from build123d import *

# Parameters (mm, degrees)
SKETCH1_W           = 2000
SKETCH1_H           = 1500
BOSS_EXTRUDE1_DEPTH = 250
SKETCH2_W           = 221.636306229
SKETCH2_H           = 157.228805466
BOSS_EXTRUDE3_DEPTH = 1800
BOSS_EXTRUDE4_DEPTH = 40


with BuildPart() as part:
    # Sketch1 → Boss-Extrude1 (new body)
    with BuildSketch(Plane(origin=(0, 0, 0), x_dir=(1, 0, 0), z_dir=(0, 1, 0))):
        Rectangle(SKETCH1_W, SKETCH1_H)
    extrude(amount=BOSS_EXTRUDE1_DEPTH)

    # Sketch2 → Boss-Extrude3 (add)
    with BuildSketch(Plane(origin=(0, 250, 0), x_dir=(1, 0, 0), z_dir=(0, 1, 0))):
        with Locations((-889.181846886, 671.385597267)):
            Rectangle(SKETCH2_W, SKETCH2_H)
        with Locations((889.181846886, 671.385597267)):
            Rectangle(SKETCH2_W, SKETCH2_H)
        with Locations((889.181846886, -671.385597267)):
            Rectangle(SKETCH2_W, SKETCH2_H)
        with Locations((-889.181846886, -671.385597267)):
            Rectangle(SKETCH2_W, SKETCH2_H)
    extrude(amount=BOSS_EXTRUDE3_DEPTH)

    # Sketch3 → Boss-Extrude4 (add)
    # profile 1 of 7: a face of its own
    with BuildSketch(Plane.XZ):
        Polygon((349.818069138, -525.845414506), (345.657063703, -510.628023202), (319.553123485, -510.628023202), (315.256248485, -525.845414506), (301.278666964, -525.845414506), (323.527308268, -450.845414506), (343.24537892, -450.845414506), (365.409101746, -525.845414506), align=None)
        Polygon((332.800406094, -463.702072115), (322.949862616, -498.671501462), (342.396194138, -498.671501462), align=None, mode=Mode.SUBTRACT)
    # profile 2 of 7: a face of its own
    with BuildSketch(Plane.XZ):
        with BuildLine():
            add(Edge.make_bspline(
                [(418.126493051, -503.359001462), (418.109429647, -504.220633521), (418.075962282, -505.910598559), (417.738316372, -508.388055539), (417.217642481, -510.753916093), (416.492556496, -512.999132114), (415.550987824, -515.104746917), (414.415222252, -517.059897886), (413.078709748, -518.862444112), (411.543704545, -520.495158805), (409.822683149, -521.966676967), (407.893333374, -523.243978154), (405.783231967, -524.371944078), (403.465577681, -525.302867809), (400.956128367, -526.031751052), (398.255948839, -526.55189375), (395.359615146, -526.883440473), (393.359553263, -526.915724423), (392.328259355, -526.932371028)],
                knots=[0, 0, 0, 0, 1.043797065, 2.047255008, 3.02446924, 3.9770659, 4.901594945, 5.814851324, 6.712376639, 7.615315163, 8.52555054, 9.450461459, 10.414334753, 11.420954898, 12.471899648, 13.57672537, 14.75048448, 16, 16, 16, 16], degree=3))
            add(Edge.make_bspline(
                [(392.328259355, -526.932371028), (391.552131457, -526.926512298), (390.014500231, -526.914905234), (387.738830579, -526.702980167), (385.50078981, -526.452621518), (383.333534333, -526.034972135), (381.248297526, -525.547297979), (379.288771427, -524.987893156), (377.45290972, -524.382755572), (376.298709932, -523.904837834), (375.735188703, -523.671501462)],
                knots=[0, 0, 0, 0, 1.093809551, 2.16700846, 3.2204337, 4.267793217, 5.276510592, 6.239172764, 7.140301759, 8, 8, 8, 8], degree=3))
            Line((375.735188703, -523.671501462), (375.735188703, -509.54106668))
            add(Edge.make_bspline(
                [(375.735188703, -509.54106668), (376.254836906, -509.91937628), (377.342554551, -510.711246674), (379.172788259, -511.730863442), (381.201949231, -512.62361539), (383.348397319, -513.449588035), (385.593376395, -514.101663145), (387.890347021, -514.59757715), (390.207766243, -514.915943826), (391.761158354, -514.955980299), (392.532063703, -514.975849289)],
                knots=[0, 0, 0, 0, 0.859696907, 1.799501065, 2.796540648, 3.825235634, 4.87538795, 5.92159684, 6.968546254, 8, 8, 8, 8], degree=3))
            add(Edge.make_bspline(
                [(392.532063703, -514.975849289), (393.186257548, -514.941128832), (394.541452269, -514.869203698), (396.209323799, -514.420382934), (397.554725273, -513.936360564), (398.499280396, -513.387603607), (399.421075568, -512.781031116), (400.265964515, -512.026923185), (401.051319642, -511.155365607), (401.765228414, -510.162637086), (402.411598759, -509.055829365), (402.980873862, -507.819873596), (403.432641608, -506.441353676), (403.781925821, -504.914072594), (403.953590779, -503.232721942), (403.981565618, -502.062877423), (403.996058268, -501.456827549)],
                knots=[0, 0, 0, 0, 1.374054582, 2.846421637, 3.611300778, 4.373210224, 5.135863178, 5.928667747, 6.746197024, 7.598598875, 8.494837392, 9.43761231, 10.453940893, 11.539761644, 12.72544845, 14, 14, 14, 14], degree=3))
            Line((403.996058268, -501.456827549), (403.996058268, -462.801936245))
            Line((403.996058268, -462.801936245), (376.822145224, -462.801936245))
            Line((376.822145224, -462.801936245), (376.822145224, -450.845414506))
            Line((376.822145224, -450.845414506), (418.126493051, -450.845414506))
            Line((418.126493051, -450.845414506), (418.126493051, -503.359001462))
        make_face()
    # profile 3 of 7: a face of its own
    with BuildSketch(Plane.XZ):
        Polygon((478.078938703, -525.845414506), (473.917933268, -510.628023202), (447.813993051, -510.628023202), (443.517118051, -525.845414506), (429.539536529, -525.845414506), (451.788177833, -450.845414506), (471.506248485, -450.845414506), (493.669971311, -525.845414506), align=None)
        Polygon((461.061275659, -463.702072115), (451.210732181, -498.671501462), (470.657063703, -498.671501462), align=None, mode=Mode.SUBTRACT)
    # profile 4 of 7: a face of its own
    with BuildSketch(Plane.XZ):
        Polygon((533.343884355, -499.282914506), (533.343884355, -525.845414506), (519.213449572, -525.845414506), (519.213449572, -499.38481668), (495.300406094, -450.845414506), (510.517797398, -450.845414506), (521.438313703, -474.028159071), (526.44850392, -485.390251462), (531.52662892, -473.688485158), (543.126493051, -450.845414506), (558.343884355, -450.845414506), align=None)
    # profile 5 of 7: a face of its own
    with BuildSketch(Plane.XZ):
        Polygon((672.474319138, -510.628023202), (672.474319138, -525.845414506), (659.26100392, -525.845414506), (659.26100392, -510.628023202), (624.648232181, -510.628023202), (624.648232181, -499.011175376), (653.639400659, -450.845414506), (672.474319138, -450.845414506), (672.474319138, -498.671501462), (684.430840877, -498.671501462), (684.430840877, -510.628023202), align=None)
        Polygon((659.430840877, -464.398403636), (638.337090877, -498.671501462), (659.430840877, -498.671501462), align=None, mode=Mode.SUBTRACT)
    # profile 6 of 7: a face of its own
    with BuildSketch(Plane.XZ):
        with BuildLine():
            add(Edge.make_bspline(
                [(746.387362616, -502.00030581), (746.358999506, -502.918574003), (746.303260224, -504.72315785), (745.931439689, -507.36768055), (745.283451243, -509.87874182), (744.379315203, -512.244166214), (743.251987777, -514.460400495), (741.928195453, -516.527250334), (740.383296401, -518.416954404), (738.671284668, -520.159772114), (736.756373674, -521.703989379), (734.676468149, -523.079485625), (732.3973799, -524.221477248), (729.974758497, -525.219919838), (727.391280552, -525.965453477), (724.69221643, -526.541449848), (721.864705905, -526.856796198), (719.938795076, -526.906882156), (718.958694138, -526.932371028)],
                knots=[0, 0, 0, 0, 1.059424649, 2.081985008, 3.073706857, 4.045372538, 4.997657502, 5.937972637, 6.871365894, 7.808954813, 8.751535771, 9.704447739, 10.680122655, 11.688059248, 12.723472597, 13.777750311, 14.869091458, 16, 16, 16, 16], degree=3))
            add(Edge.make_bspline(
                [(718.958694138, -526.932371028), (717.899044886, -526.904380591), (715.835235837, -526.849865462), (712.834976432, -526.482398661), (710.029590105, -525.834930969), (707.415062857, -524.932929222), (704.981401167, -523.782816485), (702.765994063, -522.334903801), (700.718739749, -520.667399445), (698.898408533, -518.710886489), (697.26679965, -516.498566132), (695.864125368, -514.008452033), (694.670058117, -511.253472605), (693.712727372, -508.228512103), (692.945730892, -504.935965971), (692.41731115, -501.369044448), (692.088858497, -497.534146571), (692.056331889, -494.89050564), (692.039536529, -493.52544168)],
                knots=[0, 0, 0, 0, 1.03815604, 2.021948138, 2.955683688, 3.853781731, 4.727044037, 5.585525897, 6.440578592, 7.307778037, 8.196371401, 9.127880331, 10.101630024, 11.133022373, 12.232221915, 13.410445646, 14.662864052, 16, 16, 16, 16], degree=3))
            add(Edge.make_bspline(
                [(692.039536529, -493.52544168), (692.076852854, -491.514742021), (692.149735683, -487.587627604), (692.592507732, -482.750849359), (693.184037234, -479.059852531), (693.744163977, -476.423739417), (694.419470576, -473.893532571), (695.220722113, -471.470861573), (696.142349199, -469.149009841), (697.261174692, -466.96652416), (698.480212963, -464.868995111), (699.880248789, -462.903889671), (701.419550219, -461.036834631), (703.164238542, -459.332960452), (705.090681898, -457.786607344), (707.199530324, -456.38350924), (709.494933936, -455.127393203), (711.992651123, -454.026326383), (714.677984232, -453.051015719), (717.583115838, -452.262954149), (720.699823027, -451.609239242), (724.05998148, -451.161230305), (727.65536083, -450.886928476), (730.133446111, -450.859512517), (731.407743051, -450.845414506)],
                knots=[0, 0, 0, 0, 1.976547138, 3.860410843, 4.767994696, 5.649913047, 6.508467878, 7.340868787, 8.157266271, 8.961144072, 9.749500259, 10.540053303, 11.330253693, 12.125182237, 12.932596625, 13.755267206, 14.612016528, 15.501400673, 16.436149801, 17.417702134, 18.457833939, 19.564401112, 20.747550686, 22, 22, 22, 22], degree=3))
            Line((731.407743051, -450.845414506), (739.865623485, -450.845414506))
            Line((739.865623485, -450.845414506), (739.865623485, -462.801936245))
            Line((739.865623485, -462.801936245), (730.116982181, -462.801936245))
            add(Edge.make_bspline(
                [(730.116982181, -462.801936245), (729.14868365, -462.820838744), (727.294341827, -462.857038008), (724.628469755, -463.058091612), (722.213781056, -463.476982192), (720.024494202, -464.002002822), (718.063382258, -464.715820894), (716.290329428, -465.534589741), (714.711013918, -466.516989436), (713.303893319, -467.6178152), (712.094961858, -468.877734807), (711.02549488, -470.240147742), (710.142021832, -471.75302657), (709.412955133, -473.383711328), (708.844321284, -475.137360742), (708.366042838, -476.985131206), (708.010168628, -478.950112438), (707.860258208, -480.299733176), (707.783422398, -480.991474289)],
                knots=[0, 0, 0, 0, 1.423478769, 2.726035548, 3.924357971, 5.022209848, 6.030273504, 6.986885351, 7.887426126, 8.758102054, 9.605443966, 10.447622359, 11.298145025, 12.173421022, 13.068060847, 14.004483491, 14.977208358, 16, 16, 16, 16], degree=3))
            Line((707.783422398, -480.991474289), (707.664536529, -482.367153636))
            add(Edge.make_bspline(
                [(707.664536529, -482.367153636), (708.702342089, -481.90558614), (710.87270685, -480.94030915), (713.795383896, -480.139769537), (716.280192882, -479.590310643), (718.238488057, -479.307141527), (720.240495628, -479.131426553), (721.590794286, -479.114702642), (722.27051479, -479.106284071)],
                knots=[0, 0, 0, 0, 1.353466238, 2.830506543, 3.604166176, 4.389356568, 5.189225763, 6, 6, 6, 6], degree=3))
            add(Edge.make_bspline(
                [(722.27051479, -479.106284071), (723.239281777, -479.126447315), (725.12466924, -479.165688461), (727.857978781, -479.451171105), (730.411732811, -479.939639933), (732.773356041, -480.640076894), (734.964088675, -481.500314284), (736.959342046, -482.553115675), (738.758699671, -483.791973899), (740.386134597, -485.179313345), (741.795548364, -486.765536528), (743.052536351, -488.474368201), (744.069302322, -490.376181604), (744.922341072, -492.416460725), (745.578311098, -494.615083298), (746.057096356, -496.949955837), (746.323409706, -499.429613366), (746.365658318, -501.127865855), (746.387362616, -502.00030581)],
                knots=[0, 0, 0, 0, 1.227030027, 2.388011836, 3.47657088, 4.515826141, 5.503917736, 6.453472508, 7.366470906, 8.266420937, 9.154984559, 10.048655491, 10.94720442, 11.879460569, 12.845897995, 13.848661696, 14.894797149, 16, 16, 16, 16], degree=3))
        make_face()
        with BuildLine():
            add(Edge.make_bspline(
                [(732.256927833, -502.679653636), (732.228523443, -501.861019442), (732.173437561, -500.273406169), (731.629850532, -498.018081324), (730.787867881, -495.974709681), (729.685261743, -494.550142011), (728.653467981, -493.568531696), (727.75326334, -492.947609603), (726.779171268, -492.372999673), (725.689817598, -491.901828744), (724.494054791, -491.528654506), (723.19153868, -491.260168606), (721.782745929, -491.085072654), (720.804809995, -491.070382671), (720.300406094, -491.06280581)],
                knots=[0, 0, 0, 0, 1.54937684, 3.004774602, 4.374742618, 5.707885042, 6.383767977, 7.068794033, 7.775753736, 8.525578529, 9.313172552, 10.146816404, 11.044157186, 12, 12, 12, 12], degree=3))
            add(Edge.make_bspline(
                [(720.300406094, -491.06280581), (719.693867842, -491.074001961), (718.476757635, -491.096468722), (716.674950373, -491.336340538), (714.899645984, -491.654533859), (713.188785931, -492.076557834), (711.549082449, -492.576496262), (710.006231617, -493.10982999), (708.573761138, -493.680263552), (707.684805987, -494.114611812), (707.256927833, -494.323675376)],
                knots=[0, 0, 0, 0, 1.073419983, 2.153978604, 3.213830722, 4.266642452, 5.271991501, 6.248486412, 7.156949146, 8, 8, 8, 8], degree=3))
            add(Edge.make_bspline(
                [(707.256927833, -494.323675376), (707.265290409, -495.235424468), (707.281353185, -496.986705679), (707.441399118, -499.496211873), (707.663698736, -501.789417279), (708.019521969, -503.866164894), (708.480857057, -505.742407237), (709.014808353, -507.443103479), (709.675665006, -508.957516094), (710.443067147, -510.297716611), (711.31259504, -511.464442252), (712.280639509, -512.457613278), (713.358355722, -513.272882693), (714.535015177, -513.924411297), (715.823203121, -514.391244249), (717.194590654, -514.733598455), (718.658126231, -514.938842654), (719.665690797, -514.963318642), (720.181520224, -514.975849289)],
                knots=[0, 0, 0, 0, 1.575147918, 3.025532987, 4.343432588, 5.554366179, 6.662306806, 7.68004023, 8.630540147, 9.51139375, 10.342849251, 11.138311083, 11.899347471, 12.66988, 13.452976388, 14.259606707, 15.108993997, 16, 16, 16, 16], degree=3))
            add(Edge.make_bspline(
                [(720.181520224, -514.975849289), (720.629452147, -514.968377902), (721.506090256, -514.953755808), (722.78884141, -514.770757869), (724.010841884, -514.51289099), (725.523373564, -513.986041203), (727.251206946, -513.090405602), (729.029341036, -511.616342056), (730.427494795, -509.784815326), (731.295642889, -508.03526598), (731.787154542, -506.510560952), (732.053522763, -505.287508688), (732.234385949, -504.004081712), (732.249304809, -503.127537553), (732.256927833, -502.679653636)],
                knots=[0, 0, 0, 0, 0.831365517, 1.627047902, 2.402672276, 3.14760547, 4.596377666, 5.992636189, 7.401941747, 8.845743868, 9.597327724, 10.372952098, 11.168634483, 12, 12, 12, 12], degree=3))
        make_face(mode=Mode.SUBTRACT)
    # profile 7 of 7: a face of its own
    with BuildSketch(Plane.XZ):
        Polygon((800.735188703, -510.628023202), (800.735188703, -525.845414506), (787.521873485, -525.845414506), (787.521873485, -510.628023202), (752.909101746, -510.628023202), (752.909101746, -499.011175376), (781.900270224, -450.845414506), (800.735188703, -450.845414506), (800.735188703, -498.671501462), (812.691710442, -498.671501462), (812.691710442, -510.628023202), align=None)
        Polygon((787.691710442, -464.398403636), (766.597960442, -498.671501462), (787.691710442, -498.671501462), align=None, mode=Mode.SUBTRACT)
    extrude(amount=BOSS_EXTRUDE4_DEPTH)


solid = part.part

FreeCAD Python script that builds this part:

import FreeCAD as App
import Part
import Sketcher
from FreeCAD import Vector

doc = App.newDocument("Part")
body = doc.addObject("PartDesign::Body", "Body")

# Sketch on XZ plane
sketch1 = body.newObject("Sketcher::SketchObject", "Sketch")
sketch1.AttachmentSupport = (doc.getObject("XZ_Plane"), [""])
sketch1.MapMode = "FlatFace"
sketch1.addGeometry(Part.LineSegment(Vector(-1000, -750, 0), Vector(-1000, 750, 0)), False)
sketch1.addGeometry(Part.LineSegment(Vector(-1000, 750, 0), Vector(1000, 750, 0)), False)
sketch1.addGeometry(Part.LineSegment(Vector(1000, 750, 0), Vector(1000, -750, 0)), False)
sketch1.addGeometry(Part.LineSegment(Vector(1000, -750, 0), Vector(-1000, -750, 0)), False)
sketch1.addConstraint(Sketcher.Constraint("Coincident", 0, 2, 1, 1))
sketch1.addConstraint(Sketcher.Constraint("Coincident", 1, 2, 2, 1))
sketch1.addConstraint(Sketcher.Constraint("Coincident", 2, 2, 3, 1))
sketch1.addConstraint(Sketcher.Constraint("Coincident", 3, 2, 0, 1))
sketch1.addConstraint(Sketcher.Constraint("Vertical", 0))
sketch1.addConstraint(Sketcher.Constraint("Horizontal", 1))
sketch1.addConstraint(Sketcher.Constraint("Vertical", 2))
sketch1.addConstraint(Sketcher.Constraint("Horizontal", 3))
sketch1.addConstraint(Sketcher.Constraint("Symmetric", 0, 2, 2, 2, -1, 1))
sketch1.addConstraint(Sketcher.Constraint("DistanceX", 1, 1, 1, 2, 2000.0))
sketch1.addConstraint(Sketcher.Constraint("DistanceY", 0, 1, 0, 2, 1500.0))
pad1 = body.newObject("PartDesign::Pad", "Pad")
pad1.Profile = sketch1
pad1.Length = 250
pad1.Reversed = True

# Sketch on XZ plane
sketch2 = body.newObject("Sketcher::SketchObject", "Sketch001")
sketch2.AttachmentSupport = (doc.getObject("XZ_Plane"), [""])
sketch2.MapMode = "FlatFace"
sketch2.AttachmentOffset = App.Placement(Vector(0, 0, -250), App.Rotation())
sketch2.addGeometry(Part.LineSegment(Vector(-1000, -750, 0), Vector(-1000, -593, 0)), False)
sketch2.addGeometry(Part.LineSegment(Vector(-1000, -593, 0), Vector(-778, -593, 0)), False)
sketch2.addGeometry(Part.LineSegment(Vector(-778, -593, 0), Vector(-778, -750, 0)), False)
sketch2.addGeometry(Part.LineSegment(Vector(-778, -750, 0), Vector(-1000, -750, 0)), False)
sketch2.addGeometry(Part.LineSegment(Vector(778, -750, 0), Vector(778, -593, 0)), False)
sketch2.addGeometry(Part.LineSegment(Vector(778, -593, 0), Vector(1000, -593, 0)), False)
sketch2.addGeometry(Part.LineSegment(Vector(1000, -593, 0), Vector(1000, -750, 0)), False)
sketch2.addGeometry(Part.LineSegment(Vector(1000, -750, 0), Vector(778, -750, 0)), False)
sketch2.addGeometry(Part.LineSegment(Vector(778, 593, 0), Vector(778, 750, 0)), False)
sketch2.addGeometry(Part.LineSegment(Vector(778, 750, 0), Vector(1000, 750, 0)), False)
sketch2.addGeometry(Part.LineSegment(Vector(1000, 750, 0), Vector(1000, 593, 0)), False)
sketch2.addGeometry(Part.LineSegment(Vector(1000, 593, 0), Vector(778, 593, 0)), False)
sketch2.addGeometry(Part.LineSegment(Vector(-1000, 593, 0), Vector(-1000, 750, 0)), False)
sketch2.addGeometry(Part.LineSegment(Vector(-1000, 750, 0), Vector(-778, 750, 0)), False)
sketch2.addGeometry(Part.LineSegment(Vector(-778, 750, 0), Vector(-778, 593, 0)), False)
sketch2.addGeometry(Part.LineSegment(Vector(-778, 593, 0), Vector(-1000, 593, 0)), False)
sketch2.addConstraint(Sketcher.Constraint("Coincident", 0, 2, 1, 1))
sketch2.addConstraint(Sketcher.Constraint("Coincident", 1, 2, 2, 1))
sketch2.addConstraint(Sketcher.Constraint("Coincident", 2, 2, 3, 1))
sketch2.addConstraint(Sketcher.Constraint("Coincident", 3, 2, 0, 1))
sketch2.addConstraint(Sketcher.Constraint("Coincident", 4, 2, 5, 1))
sketch2.addConstraint(Sketcher.Constraint("Coincident", 5, 2, 6, 1))
sketch2.addConstraint(Sketcher.Constraint("Coincident", 6, 2, 7, 1))
sketch2.addConstraint(Sketcher.Constraint("Coincident", 7, 2, 4, 1))
sketch2.addConstraint(Sketcher.Constraint("Coincident", 8, 2, 9, 1))
sketch2.addConstraint(Sketcher.Constraint("Coincident", 9, 2, 10, 1))
sketch2.addConstraint(Sketcher.Constraint("Coincident", 10, 2, 11, 1))
sketch2.addConstraint(Sketcher.Constraint("Coincident", 11, 2, 8, 1))
sketch2.addConstraint(Sketcher.Constraint("Coincident", 12, 2, 13, 1))
sketch2.addConstraint(Sketcher.Constraint("Coincident", 13, 2, 14, 1))
sketch2.addConstraint(Sketcher.Constraint("Coincident", 14, 2, 15, 1))
sketch2.addConstraint(Sketcher.Constraint("Coincident", 15, 2, 12, 1))
sketch2.addConstraint(Sketcher.Constraint("Vertical", 0))
sketch2.addConstraint(Sketcher.Constraint("Horizontal", 1))
sketch2.addConstraint(Sketcher.Constraint("Vertical", 2))
sketch2.addConstraint(Sketcher.Constraint("Horizontal", 3))
sketch2.addConstraint(Sketcher.Constraint("Vertical", 4))
sketch2.addConstraint(Sketcher.Constraint("Horizontal", 5))
sketch2.addConstraint(Sketcher.Constraint("Vertical", 6))
sketch2.addConstraint(Sketcher.Constraint("Horizontal", 7))
sketch2.addConstraint(Sketcher.Constraint("Vertical", 8))
sketch2.addConstraint(Sketcher.Constraint("Horizontal", 9))
sketch2.addConstraint(Sketcher.Constraint("Vertical", 10))
sketch2.addConstraint(Sketcher.Constraint("Horizontal", 11))
sketch2.addConstraint(Sketcher.Constraint("Vertical", 12))
sketch2.addConstraint(Sketcher.Constraint("Horizontal", 13))
sketch2.addConstraint(Sketcher.Constraint("Vertical", 14))
sketch2.addConstraint(Sketcher.Constraint("Horizontal", 15))
sketch2.addConstraint(Sketcher.Constraint("Symmetric", 2, 2, 8, 2, -1, 1))
sketch2.addConstraint(Sketcher.Constraint("Symmetric", 0, 2, 10, 2, -1, 1))
sketch2.addConstraint(Sketcher.Constraint("Symmetric", 6, 2, 12, 2, -1, 1))
sketch2.addConstraint(Sketcher.Constraint("Symmetric", 4, 2, 14, 2, -1, 1))
sketch2.addConstraint(Sketcher.Constraint("Symmetric", 1, 2, 4, 2, -2))
sketch2.addConstraint(Sketcher.Constraint("Symmetric", 3, 2, 6, 2, -2))
sketch2.addConstraint(Sketcher.Constraint("DistanceX", 0, 2, -1, 1, 1000.0))
sketch2.addConstraint(Sketcher.Constraint("DistanceY", 2, 2, -1, 1, 750.0))
sketch2.addConstraint(Sketcher.Constraint("DistanceX", 1, 1, 1, 2, 221.636306))
sketch2.addConstraint(Sketcher.Constraint("DistanceY", 0, 1, 0, 2, 157.228805))
pad2 = body.newObject("PartDesign::Pad", "Pad001")
pad2.Profile = sketch2
pad2.Length = 1800
pad2.Reversed = True

# Sketch on XZ plane
sketch3 = body.newObject("Sketcher::SketchObject", "Sketch002")
sketch3.AttachmentSupport = (doc.getObject("XZ_Plane"), [""])
sketch3.MapMode = "FlatFace"
sketch3.addGeometry(Part.LineSegment(Vector(345.657064, -510.628023, 0), Vector(349.818069, -525.845415, 0)), False)
sketch3.addGeometry(Part.LineSegment(Vector(349.818069, -525.845415, 0), Vector(365.409102, -525.845415, 0)), False)
sketch3.addGeometry(Part.LineSegment(Vector(365.409102, -525.845415, 0), Vector(343.245379, -450.845415, 0)), False)
sketch3.addGeometry(Part.LineSegment(Vector(343.245379, -450.845415, 0), Vector(323.527308, -450.845415, 0)), False)
sketch3.addGeometry(Part.LineSegment(Vector(323.527308, -450.845415, 0), Vector(301.278667, -525.845415, 0)), False)
sketch3.addGeometry(Part.LineSegment(Vector(301.278667, -525.845415, 0), Vector(315.256248, -525.845415, 0)), False)
sketch3.addGeometry(Part.LineSegment(Vector(315.256248, -525.845415, 0), Vector(319.553123, -510.628023, 0)), False)
sketch3.addGeometry(Part.LineSegment(Vector(319.553123, -510.628023, 0), Vector(345.657064, -510.628023, 0)), False)
sketch3.addGeometry(Part.LineSegment(Vector(332.800406, -463.702072, 0), Vector(342.396194, -498.671501, 0)), False)
sketch3.addGeometry(Part.LineSegment(Vector(342.396194, -498.671501, 0), Vector(322.949863, -498.671501, 0)), False)
sketch3.addGeometry(Part.LineSegment(Vector(322.949863, -498.671501, 0), Vector(332.800406, -463.702072, 0)), False)
sketch3.addGeometry(Part.BSplineCurve([Vector(418.126493, -503.359001, 0), Vector(418.10943, -504.220634, 0), Vector(418.075962, -505.910599, 0), Vector(417.738316, -508.388056, 0), Vector(417.217642, -510.753916, 0), Vector(416.492556, -512.999132, 0), Vector(415.550988, -515.104747, 0), Vector(414.415222, -517.059898, 0), Vector(413.07871, -518.862444, 0), Vector(411.543705, -520.495159, 0), Vector(409.822683, -521.966677, 0), Vector(407.893333, -523.243978, 0), Vector(405.783232, -524.371944, 0), Vector(403.465578, -525.302868, 0), Vector(400.956128, -526.031751, 0), Vector(398.255949, -526.551894, 0), Vector(395.359615, -526.88344, 0), Vector(393.359553, -526.915724, 0), Vector(392.328259, -526.932371, 0)], [4, 1, 1, 1, 1, 1, 1, 1, 1, 1, 1, 1, 1, 1, 1, 1, 4], [0, 1.043797065, 2.047255008, 3.02446924, 3.9770659, 4.901594945, 5.814851324, 6.712376639, 7.615315163, 8.52555054, 9.450461459, 10.414334753, 11.420954898, 12.471899648, 13.57672537, 14.75048448, 16], False, 3, [1, 1, 1, 1, 1, 1, 1, 1, 1, 1, 1, 1, 1, 1, 1, 1, 1, 1, 1], False), False)
sketch3.addGeometry(Part.LineSegment(Vector(418.126493, -503.359001, 0), Vector(418.126493, -450.845415, 0)), False)
sketch3.addGeometry(Part.LineSegment(Vector(418.126493, -450.845415, 0), Vector(376.822145, -450.845415, 0)), False)
sketch3.addGeometry(Part.LineSegment(Vector(376.822145, -450.845415, 0), Vector(376.822145, -462.801936, 0)), False)
sketch3.addGeometry(Part.LineSegment(Vector(376.822145, -462.801936, 0), Vector(403.996058, -462.801936, 0)), False)
sketch3.addGeometry(Part.LineSegment(Vector(403.996058, -462.801936, 0), Vector(403.996058, -501.456828, 0)), False)
sketch3.addGeometry(Part.BSplineCurve([Vector(392.532064, -514.975849, 0), Vector(393.186258, -514.941129, 0), Vector(394.541452, -514.869204, 0), Vector(396.209324, -514.420383, 0), Vector(397.554725, -513.936361, 0), Vector(398.49928, -513.387604, 0), Vector(399.421076, -512.781031, 0), Vector(400.265965, -512.026923, 0), Vector(401.05132, -511.155366, 0), Vector(401.765228, -510.162637, 0), Vector(402.411599, -509.055829, 0), Vector(402.980874, -507.819874, 0), Vector(403.432642, -506.441354, 0), Vector(403.781926, -504.914073, 0), Vector(403.953591, -503.232722, 0), Vector(403.981566, -502.062877, 0), Vector(403.996058, -501.456828, 0)], [4, 1, 1, 1, 1, 1, 1, 1, 1, 1, 1, 1, 1, 1, 4], [0, 1.374054582, 2.846421637, 3.611300778, 4.373210224, 5.135863178, 5.928667747, 6.746197024, 7.598598875, 8.494837392, 9.43761231, 10.453940893, 11.539761644, 12.72544845, 14], False, 3, [1, 1, 1, 1, 1, 1, 1, 1, 1, 1, 1, 1, 1, 1, 1, 1, 1], False), False)
sketch3.addGeometry(Part.BSplineCurve([Vector(375.735189, -509.541067, 0), Vector(376.254837, -509.919376, 0), Vector(377.342555, -510.711247, 0), Vector(379.172788, -511.730863, 0), Vector(381.201949, -512.623615, 0), Vector(383.348397, -513.449588, 0), Vector(385.593376, -514.101663, 0), Vector(387.890347, -514.597577, 0), Vector(390.207766, -514.915944, 0), Vector(391.761158, -514.95598, 0), Vector(392.532064, -514.975849, 0)], [4, 1, 1, 1, 1, 1, 1, 1, 4], [0, 0.859696907, 1.799501065, 2.796540648, 3.825235634, 4.87538795, 5.92159684, 6.968546254, 8], False, 3, [1, 1, 1, 1, 1, 1, 1, 1, 1, 1, 1], False), False)
sketch3.addGeometry(Part.LineSegment(Vector(375.735189, -509.541067, 0), Vector(375.735189, -523.671501, 0)), False)
sketch3.addGeometry(Part.BSplineCurve([Vector(392.328259, -526.932371, 0), Vector(391.552131, -526.926512, 0), Vector(390.0145, -526.914905, 0), Vector(387.738831, -526.70298, 0), Vector(385.50079, -526.452622, 0), Vector(383.333534, -526.034972, 0), Vector(381.248298, -525.547298, 0), Vector(379.288771, -524.987893, 0), Vector(377.45291, -524.382756, 0), Vector(376.29871, -523.904838, 0), Vector(375.735189, -523.671501, 0)], [4, 1, 1, 1, 1, 1, 1, 1, 4], [0, 1.093809551, 2.16700846, 3.2204337, 4.267793217, 5.276510592, 6.239172764, 7.140301759, 8], False, 3, [1, 1, 1, 1, 1, 1, 1, 1, 1, 1, 1], False), False)
sketch3.addGeometry(Part.LineSegment(Vector(473.917933, -510.628023, 0), Vector(478.078939, -525.845415, 0)), False)
sketch3.addGeometry(Part.LineSegment(Vector(478.078939, -525.845415, 0), Vector(493.669971, -525.845415, 0)), False)
sketch3.addGeometry(Part.LineSegment(Vector(493.669971, -525.845415, 0), Vector(471.506248, -450.845415, 0)), False)
sketch3.addGeometry(Part.LineSegment(Vector(471.506248, -450.845415, 0), Vector(451.788178, -450.845415, 0)), False)
sketch3.addGeometry(Part.LineSegment(Vector(451.788178, -450.845415, 0), Vector(429.539537, -525.845415, 0)), False)
sketch3.addGeometry(Part.LineSegment(Vector(429.539537, -525.845415, 0), Vector(443.517118, -525.845415, 0)), False)
sketch3.addGeometry(Part.LineSegment(Vector(443.517118, -525.845415, 0), Vector(447.813993, -510.628023, 0)), False)
sketch3.addGeometry(Part.LineSegment(Vector(447.813993, -510.628023, 0), Vector(473.917933, -510.628023, 0)), False)
sketch3.addGeometry(Part.LineSegment(Vector(461.061276, -463.702072, 0), Vector(470.657064, -498.671501, 0)), False)
sketch3.addGeometry(Part.LineSegment(Vector(470.657064, -498.671501, 0), Vector(451.210732, -498.671501, 0)), False)
sketch3.addGeometry(Part.LineSegment(Vector(451.210732, -498.671501, 0), Vector(461.061276, -463.702072, 0)), False)
sketch3.addGeometry(Part.LineSegment(Vector(533.343884, -525.845415, 0), Vector(533.343884, -499.282915, 0)), False)
sketch3.addGeometry(Part.LineSegment(Vector(533.343884, -499.282915, 0), Vector(558.343884, -450.845415, 0)), False)
sketch3.addGeometry(Part.LineSegment(Vector(558.343884, -450.845415, 0), Vector(543.126493, -450.845415, 0)), False)
sketch3.addGeometry(Part.LineSegment(Vector(543.126493, -450.845415, 0), Vector(531.526629, -473.688485, 0)), False)
sketch3.addGeometry(Part.LineSegment(Vector(531.526629, -473.688485, 0), Vector(526.448504, -485.390251, 0)), False)
sketch3.addGeometry(Part.LineSegment(Vector(526.448504, -485.390251, 0), Vector(521.438314, -474.028159, 0)), False)
sketch3.addGeometry(Part.LineSegment(Vector(521.438314, -474.028159, 0), Vector(510.517797, -450.845415, 0)), False)
sketch3.addGeometry(Part.LineSegment(Vector(510.517797, -450.845415, 0), Vector(495.300406, -450.845415, 0)), False)
sketch3.addGeometry(Part.LineSegment(Vector(495.300406, -450.845415, 0), Vector(519.21345, -499.384817, 0)), False)
sketch3.addGeometry(Part.LineSegment(Vector(519.21345, -499.384817, 0), Vector(519.21345, -525.845415, 0)), False)
sketch3.addGeometry(Part.LineSegment(Vector(519.21345, -525.845415, 0), Vector(533.343884, -525.845415, 0)), False)
sketch3.addGeometry(Part.LineSegment(Vector(672.474319, -525.845415, 0), Vector(672.474319, -510.628023, 0)), False)
sketch3.addGeometry(Part.LineSegment(Vector(672.474319, -510.628023, 0), Vector(684.430841, -510.628023, 0)), False)
sketch3.addGeometry(Part.LineSegment(Vector(684.430841, -510.628023, 0), Vector(684.430841, -498.671501, 0)), False)
sketch3.addGeometry(Part.LineSegment(Vector(684.430841, -498.671501, 0), Vector(672.474319, -498.671501, 0)), False)
sketch3.addGeometry(Part.LineSegment(Vector(672.474319, -498.671501, 0), Vector(672.474319, -450.845415, 0)), False)
sketch3.addGeometry(Part.LineSegment(Vector(672.474319, -450.845415, 0), Vector(653.639401, -450.845415, 0)), False)
sketch3.addGeometry(Part.LineSegment(Vector(653.639401, -450.845415, 0), Vector(624.648232, -499.011175, 0)), False)
sketch3.addGeometry(Part.LineSegment(Vector(624.648232, -499.011175, 0), Vector(624.648232, -510.628023, 0)), False)
sketch3.addGeometry(Part.LineSegment(Vector(624.648232, -510.628023, 0), Vector(659.261004, -510.628023, 0)), False)
sketch3.addGeometry(Part.LineSegment(Vector(659.261004, -510.628023, 0), Vector(659.261004, -525.845415, 0)), False)
sketch3.addGeometry(Part.LineSegment(Vector(659.261004, -525.845415, 0), Vector(672.474319, -525.845415, 0)), False)
sketch3.addGeometry(Part.LineSegment(Vector(659.430841, -464.398404, 0), Vector(659.430841, -498.671501, 0)), False)
sketch3.addGeometry(Part.LineSegment(Vector(659.430841, -498.671501, 0), Vector(638.337091, -498.671501, 0)), False)
sketch3.addGeometry(Part.LineSegment(Vector(638.337091, -498.671501, 0), Vector(659.430841, -464.398404, 0)), False)
sketch3.addGeometry(Part.BSplineCurve([Vector(746.387363, -502.000306, 0), Vector(746.359, -502.918574, 0), Vector(746.30326, -504.723158, 0), Vector(745.93144, -507.367681, 0), Vector(745.283451, -509.878742, 0), Vector(744.379315, -512.244166, 0), Vector(743.251988, -514.4604, 0), Vector(741.928195, -516.52725, 0), Vector(740.383296, -518.416954, 0), Vector(738.671285, -520.159772, 0), Vector(736.756374, -521.703989, 0), Vector(734.676468, -523.079486, 0), Vector(732.39738, -524.221477, 0), Vector(729.974758, -525.21992, 0), Vector(727.391281, -525.965453, 0), Vector(724.692216, -526.54145, 0), Vector(721.864706, -526.856796, 0), Vector(719.938795, -526.906882, 0), Vector(718.958694, -526.932371, 0)], [4, 1, 1, 1, 1, 1, 1, 1, 1, 1, 1, 1, 1, 1, 1, 1, 4], [0, 1.059424649, 2.081985008, 3.073706857, 4.045372538, 4.997657502, 5.937972637, 6.871365894, 7.808954813, 8.751535771, 9.704447739, 10.680122655, 11.688059248, 12.723472597, 13.777750311, 14.869091458, 16], False, 3, [1, 1, 1, 1, 1, 1, 1, 1, 1, 1, 1, 1, 1, 1, 1, 1, 1, 1, 1], False), False)
sketch3.addGeometry(Part.BSplineCurve([Vector(722.270515, -479.106284, 0), Vector(723.239282, -479.126447, 0), Vector(725.124669, -479.165688, 0), Vector(727.857979, -479.451171, 0), Vector(730.411733, -479.93964, 0), Vector(732.773356, -480.640077, 0), Vector(734.964089, -481.500314, 0), Vector(736.959342, -482.553116, 0), Vector(738.7587, -483.791974, 0), Vector(740.386135, -485.179313, 0), Vector(741.795548, -486.765537, 0), Vector(743.052536, -488.474368, 0), Vector(744.069302, -490.376182, 0), Vector(744.922341, -492.416461, 0), Vector(745.578311, -494.615083, 0), Vector(746.057096, -496.949956, 0), Vector(746.32341, -499.429613, 0), Vector(746.365658, -501.127866, 0), Vector(746.387363, -502.000306, 0)], [4, 1, 1, 1, 1, 1, 1, 1, 1, 1, 1, 1, 1, 1, 1, 1, 4], [0, 1.227030027, 2.388011836, 3.47657088, 4.515826141, 5.503917736, 6.453472508, 7.366470906, 8.266420937, 9.154984559, 10.048655491, 10.94720442, 11.879460569, 12.845897995, 13.848661696, 14.894797149, 16], False, 3, [1, 1, 1, 1, 1, 1, 1, 1, 1, 1, 1, 1, 1, 1, 1, 1, 1, 1, 1], False), False)
sketch3.addGeometry(Part.BSplineCurve([Vector(707.664537, -482.367154, 0), Vector(708.702342, -481.905586, 0), Vector(710.872707, -480.940309, 0), Vector(713.795384, -480.13977, 0), Vector(716.280193, -479.590311, 0), Vector(718.238488, -479.307142, 0), Vector(720.240496, -479.131427, 0), Vector(721.590794, -479.114703, 0), Vector(722.270515, -479.106284, 0)], [4, 1, 1, 1, 1, 1, 4], [0, 1.353466238, 2.830506543, 3.604166176, 4.389356568, 5.189225763, 6], False, 3, [1, 1, 1, 1, 1, 1, 1, 1, 1], False), False)
sketch3.addGeometry(Part.LineSegment(Vector(707.664537, -482.367154, 0), Vector(707.783422, -480.991474, 0)), False)
sketch3.addGeometry(Part.BSplineCurve([Vector(730.116982, -462.801936, 0), Vector(729.148684, -462.820839, 0), Vector(727.294342, -462.857038, 0), Vector(724.62847, -463.058092, 0), Vector(722.213781, -463.476982, 0), Vector(720.024494, -464.002003, 0), Vector(718.063382, -464.715821, 0), Vector(716.290329, -465.53459, 0), Vector(714.711014, -466.516989, 0), Vector(713.303893, -467.617815, 0), Vector(712.094962, -468.877735, 0), Vector(711.025495, -470.240148, 0), Vector(710.142022, -471.753027, 0), Vector(709.412955, -473.383711, 0), Vector(708.844321, -475.137361, 0), Vector(708.366043, -476.985131, 0), Vector(708.010169, -478.950112, 0), Vector(707.860258, -480.299733, 0), Vector(707.783422, -480.991474, 0)], [4, 1, 1, 1, 1, 1, 1, 1, 1, 1, 1, 1, 1, 1, 1, 1, 4], [0, 1.423478769, 2.726035548, 3.924357971, 5.022209848, 6.030273504, 6.986885351, 7.887426126, 8.758102054, 9.605443966, 10.447622359, 11.298145025, 12.173421022, 13.068060847, 14.004483491, 14.977208358, 16], False, 3, [1, 1, 1, 1, 1, 1, 1, 1, 1, 1, 1, 1, 1, 1, 1, 1, 1, 1, 1], False), False)
sketch3.addGeometry(Part.LineSegment(Vector(730.116982, -462.801936, 0), Vector(739.865623, -462.801936, 0)), False)
sketch3.addGeometry(Part.LineSegment(Vector(739.865623, -462.801936, 0), Vector(739.865623, -450.845415, 0)), False)
sketch3.addGeometry(Part.LineSegment(Vector(739.865623, -450.845415, 0), Vector(731.407743, -450.845415, 0)), False)
sketch3.addGeometry(Part.BSplineCurve([Vector(692.039537, -493.525442, 0), Vector(692.076853, -491.514742, 0), Vector(692.149736, -487.587628, 0), Vector(692.592508, -482.750849, 0), Vector(693.184037, -479.059853, 0), Vector(693.744164, -476.423739, 0), Vector(694.419471, -473.893533, 0), Vector(695.220722, -471.470862, 0), Vector(696.142349, -469.14901, 0), Vector(697.261175, -466.966524, 0), Vector(698.480213, -464.868995, 0), Vector(699.880249, -462.90389, 0), Vector(701.41955, -461.036835, 0), Vector(703.164239, -459.33296, 0), Vector(705.090682, -457.786607, 0), Vector(707.19953, -456.383509, 0), Vector(709.494934, -455.127393, 0), Vector(711.992651, -454.026326, 0), Vector(714.677984, -453.051016, 0), Vector(717.583116, -452.262954, 0), Vector(720.699823, -451.609239, 0), Vector(724.059981, -451.16123, 0), Vector(727.655361, -450.886928, 0), Vector(730.133446, -450.859513, 0), Vector(731.407743, -450.845415, 0)], [4, 1, 1, 1, 1, 1, 1, 1, 1, 1, 1, 1, 1, 1, 1, 1, 1, 1, 1, 1, 1, 1, 4], [0, 1.976547138, 3.860410843, 4.767994696, 5.649913047, 6.508467878, 7.340868787, 8.157266271, 8.961144072, 9.749500259, 10.540053303, 11.330253693, 12.125182237, 12.932596625, 13.755267206, 14.612016528, 15.501400673, 16.436149801, 17.417702134, 18.457833939, 19.564401112, 20.747550686, 22], False, 3, [1, 1, 1, 1, 1, 1, 1, 1, 1, 1, 1, 1, 1, 1, 1, 1, 1, 1, 1, 1, 1, 1, 1, 1, 1], False), False)
sketch3.addGeometry(Part.BSplineCurve([Vector(718.958694, -526.932371, 0), Vector(717.899045, -526.904381, 0), Vector(715.835236, -526.849865, 0), Vector(712.834976, -526.482399, 0), Vector(710.02959, -525.834931, 0), Vector(707.415063, -524.932929, 0), Vector(704.981401, -523.782816, 0), Vector(702.765994, -522.334904, 0), Vector(700.71874, -520.667399, 0), Vector(698.898409, -518.710886, 0), Vector(697.2668, -516.498566, 0), Vector(695.864125, -514.008452, 0), Vector(694.670058, -511.253473, 0), Vector(693.712727, -508.228512, 0), Vector(692.945731, -504.935966, 0), Vector(692.417311, -501.369044, 0), Vector(692.088858, -497.534147, 0), Vector(692.056332, -494.890506, 0), Vector(692.039537, -493.525442, 0)], [4, 1, 1, 1, 1, 1, 1, 1, 1, 1, 1, 1, 1, 1, 1, 1, 4], [0, 1.03815604, 2.021948138, 2.955683688, 3.853781731, 4.727044037, 5.585525897, 6.440578592, 7.307778037, 8.196371401, 9.127880331, 10.101630024, 11.133022373, 12.232221915, 13.410445646, 14.662864052, 16], False, 3, [1, 1, 1, 1, 1, 1, 1, 1, 1, 1, 1, 1, 1, 1, 1, 1, 1, 1, 1], False), False)
sketch3.addGeometry(Part.BSplineCurve([Vector(720.18152, -514.975849, 0), Vector(720.629452, -514.968378, 0), Vector(721.50609, -514.953756, 0), Vector(722.788841, -514.770758, 0), Vector(724.010842, -514.512891, 0), Vector(725.523374, -513.986041, 0), Vector(727.251207, -513.090406, 0), Vector(729.029341, -511.616342, 0), Vector(730.427495, -509.784815, 0), Vector(731.295643, -508.035266, 0), Vector(731.787155, -506.510561, 0), Vector(732.053523, -505.287509, 0), Vector(732.234386, -504.004082, 0), Vector(732.249305, -503.127538, 0), Vector(732.256928, -502.679654, 0)], [4, 1, 1, 1, 1, 1, 1, 1, 1, 1, 1, 1, 4], [0, 0.831365517, 1.627047902, 2.402672276, 3.14760547, 4.596377666, 5.992636189, 7.401941747, 8.845743868, 9.597327724, 10.372952098, 11.168634483, 12], False, 3, [1, 1, 1, 1, 1, 1, 1, 1, 1, 1, 1, 1, 1, 1, 1], False), False)
sketch3.addGeometry(Part.BSplineCurve([Vector(707.256928, -494.323675, 0), Vector(707.26529, -495.235424, 0), Vector(707.281353, -496.986706, 0), Vector(707.441399, -499.496212, 0), Vector(707.663699, -501.789417, 0), Vector(708.019522, -503.866165, 0), Vector(708.480857, -505.742407, 0), Vector(709.014808, -507.443103, 0), Vector(709.675665, -508.957516, 0), Vector(710.443067, -510.297717, 0), Vector(711.312595, -511.464442, 0), Vector(712.28064, -512.457613, 0), Vector(713.358356, -513.272883, 0), Vector(714.535015, -513.924411, 0), Vector(715.823203, -514.391244, 0), Vector(717.194591, -514.733598, 0), Vector(718.658126, -514.938843, 0), Vector(719.665691, -514.963319, 0), Vector(720.18152, -514.975849, 0)], [4, 1, 1, 1, 1, 1, 1, 1, 1, 1, 1, 1, 1, 1, 1, 1, 4], [0, 1.575147918, 3.025532987, 4.343432588, 5.554366179, 6.662306806, 7.68004023, 8.630540147, 9.51139375, 10.342849251, 11.138311083, 11.899347471, 12.66988, 13.452976388, 14.259606707, 15.108993997, 16], False, 3, [1, 1, 1, 1, 1, 1, 1, 1, 1, 1, 1, 1, 1, 1, 1, 1, 1, 1, 1], False), False)
sketch3.addGeometry(Part.BSplineCurve([Vector(720.300406, -491.062806, 0), Vector(719.693868, -491.074002, 0), Vector(718.476758, -491.096469, 0), Vector(716.67495, -491.336341, 0), Vector(714.899646, -491.654534, 0), Vector(713.188786, -492.076558, 0), Vector(711.549082, -492.576496, 0), Vector(710.006232, -493.10983, 0), Vector(708.573761, -493.680264, 0), Vector(707.684806, -494.114612, 0), Vector(707.256928, -494.323675, 0)], [4, 1, 1, 1, 1, 1, 1, 1, 4], [0, 1.073419983, 2.153978604, 3.213830722, 4.266642452, 5.271991501, 6.248486412, 7.156949146, 8], False, 3, [1, 1, 1, 1, 1, 1, 1, 1, 1, 1, 1], False), False)
sketch3.addGeometry(Part.BSplineCurve([Vector(732.256928, -502.679654, 0), Vector(732.228523, -501.861019, 0), Vector(732.173438, -500.273406, 0), Vector(731.629851, -498.018081, 0), Vector(730.787868, -495.97471, 0), Vector(729.685262, -494.550142, 0), Vector(728.653468, -493.568532, 0), Vector(727.753263, -492.94761, 0), Vector(726.779171, -492.373, 0), Vector(725.689818, -491.901829, 0), Vector(724.494055, -491.528655, 0), Vector(723.191539, -491.260169, 0), Vector(721.782746, -491.085073, 0), Vector(720.80481, -491.070383, 0), Vector(720.300406, -491.062806, 0)], [4, 1, 1, 1, 1, 1, 1, 1, 1, 1, 1, 1, 4], [0, 1.54937684, 3.004774602, 4.374742618, 5.707885042, 6.383767977, 7.068794033, 7.775753736, 8.525578529, 9.313172552, 10.146816404, 11.044157186, 12], False, 3, [1, 1, 1, 1, 1, 1, 1, 1, 1, 1, 1, 1, 1, 1, 1], False), False)
sketch3.addGeometry(Part.LineSegment(Vector(800.735189, -525.845415, 0), Vector(800.735189, -510.628023, 0)), False)
sketch3.addGeometry(Part.LineSegment(Vector(800.735189, -510.628023, 0), Vector(812.69171, -510.628023, 0)), False)
sketch3.addGeometry(Part.LineSegment(Vector(812.69171, -510.628023, 0), Vector(812.69171, -498.671501, 0)), False)
sketch3.addGeometry(Part.LineSegment(Vector(812.69171, -498.671501, 0), Vector(800.735189, -498.671501, 0)), False)
sketch3.addGeometry(Part.LineSegment(Vector(800.735189, -498.671501, 0), Vector(800.735189, -450.845415, 0)), False)
sketch3.addGeometry(Part.LineSegment(Vector(800.735189, -450.845415, 0), Vector(781.90027, -450.845415, 0)), False)
sketch3.addGeometry(Part.LineSegment(Vector(781.90027, -450.845415, 0), Vector(752.909102, -499.011175, 0)), False)
sketch3.addGeometry(Part.LineSegment(Vector(752.909102, -499.011175, 0), Vector(752.909102, -510.628023, 0)), False)
sketch3.addGeometry(Part.LineSegment(Vector(752.909102, -510.628023, 0), Vector(787.521873, -510.628023, 0)), False)
sketch3.addGeometry(Part.LineSegment(Vector(787.521873, -510.628023, 0), Vector(787.521873, -525.845415, 0)), False)
sketch3.addGeometry(Part.LineSegment(Vector(787.521873, -525.845415, 0), Vector(800.735189, -525.845415, 0)), False)
sketch3.addGeometry(Part.LineSegment(Vector(787.69171, -464.398404, 0), Vector(787.69171, -498.671501, 0)), False)
sketch3.addGeometry(Part.LineSegment(Vector(787.69171, -498.671501, 0), Vector(766.59796, -498.671501, 0)), False)
sketch3.addGeometry(Part.LineSegment(Vector(766.59796, -498.671501, 0), Vector(787.69171, -464.398404, 0)), False)
sketch3.addConstraint(Sketcher.Constraint("Block", 11))
sketch3.addConstraint(Sketcher.Constraint("Block", 17))
sketch3.addConstraint(Sketcher.Constraint("Block", 18))
sketch3.addConstraint(Sketcher.Constraint("Block", 20))
sketch3.addConstraint(Sketcher.Constraint("Block", 57))
sketch3.addConstraint(Sketcher.Constraint("Block", 58))
sketch3.addConstraint(Sketcher.Constraint("Block", 59))
sketch3.addConstraint(Sketcher.Constraint("Block", 61))
sketch3.addConstraint(Sketcher.Constraint("Block", 65))
sketch3.addConstraint(Sketcher.Constraint("Block", 66))
sketch3.addConstraint(Sketcher.Constraint("Block", 67))
sketch3.addConstraint(Sketcher.Constraint("Block", 68))
sketch3.addConstraint(Sketcher.Constraint("Block", 69))
sketch3.addConstraint(Sketcher.Constraint("Block", 70))
sketch3.addConstraint(Sketcher.Constraint("Coincident", 0, 2, 1, 1))
sketch3.addConstraint(Sketcher.Constraint("Coincident", 1, 2, 2, 1))
sketch3.addConstraint(Sketcher.Constraint("Coincident", 2, 2, 3, 1))
sketch3.addConstraint(Sketcher.Constraint("Coincident", 3, 2, 4, 1))
sketch3.addConstraint(Sketcher.Constraint("Coincident", 4, 2, 5, 1))
sketch3.addConstraint(Sketcher.Constraint("Coincident", 5, 2, 6, 1))
sketch3.addConstraint(Sketcher.Constraint("Coincident", 6, 2, 7, 1))
sketch3.addConstraint(Sketcher.Constraint("Coincident", 7, 2, 0, 1))
sketch3.addConstraint(Sketcher.Constraint("Coincident", 8, 2, 9, 1))
sketch3.addConstraint(Sketcher.Constraint("Coincident", 9, 2, 10, 1))
sketch3.addConstraint(Sketcher.Constraint("Coincident", 10, 2, 8, 1))
sketch3.addConstraint(Sketcher.Constraint("Coincident", 11, 1, 12, 1))
sketch3.addConstraint(Sketcher.Constraint("Coincident", 12, 2, 13, 1))
sketch3.addConstraint(Sketcher.Constraint("Coincident", 13, 2, 14, 1))
sketch3.addConstraint(Sketcher.Constraint("Coincident", 14, 2, 15, 1))
sketch3.addConstraint(Sketcher.Constraint("Coincident", 15, 2, 16, 1))
sketch3.addConstraint(Sketcher.Constraint("Coincident", 16, 2, 17, 2))
sketch3.addConstraint(Sketcher.Constraint("Coincident", 18, 1, 19, 1))
sketch3.addConstraint(Sketcher.Constraint("Coincident", 19, 2, 20, 2))
sketch3.addConstraint(Sketcher.Constraint("Coincident", 21, 2, 22, 1))
sketch3.addConstraint(Sketcher.Constraint("Coincident", 22, 2, 23, 1))
sketch3.addConstraint(Sketcher.Constraint("Coincident", 23, 2, 24, 1))
sketch3.addConstraint(Sketcher.Constraint("Coincident", 24, 2, 25, 1))
sketch3.addConstraint(Sketcher.Constraint("Coincident", 25, 2, 26, 1))
sketch3.addConstraint(Sketcher.Constraint("Coincident", 26, 2, 27, 1))
sketch3.addConstraint(Sketcher.Constraint("Coincident", 27, 2, 28, 1))
sketch3.addConstraint(Sketcher.Constraint("Coincident", 28, 2, 21, 1))
sketch3.addConstraint(Sketcher.Constraint("Coincident", 29, 2, 30, 1))
sketch3.addConstraint(Sketcher.Constraint("Coincident", 30, 2, 31, 1))
sketch3.addConstraint(Sketcher.Constraint("Coincident", 31, 2, 29, 1))
sketch3.addConstraint(Sketcher.Constraint("Coincident", 32, 2, 33, 1))
sketch3.addConstraint(Sketcher.Constraint("Coincident", 33, 2, 34, 1))
sketch3.addConstraint(Sketcher.Constraint("Coincident", 34, 2, 35, 1))
sketch3.addConstraint(Sketcher.Constraint("Coincident", 35, 2, 36, 1))
sketch3.addConstraint(Sketcher.Constraint("Coincident", 36, 2, 37, 1))
sketch3.addConstraint(Sketcher.Constraint("Coincident", 37, 2, 38, 1))
sketch3.addConstraint(Sketcher.Constraint("Coincident", 38, 2, 39, 1))
sketch3.addConstraint(Sketcher.Constraint("Coincident", 39, 2, 40, 1))
sketch3.addConstraint(Sketcher.Constraint("Coincident", 40, 2, 41, 1))
sketch3.addConstraint(Sketcher.Constraint("Coincident", 41, 2, 42, 1))
sketch3.addConstraint(Sketcher.Constraint("Coincident", 42, 2, 32, 1))
sketch3.addConstraint(Sketcher.Constraint("Coincident", 43, 2, 44, 1))
sketch3.addConstraint(Sketcher.Constraint("Coincident", 44, 2, 45, 1))
sketch3.addConstraint(Sketcher.Constraint("Coincident", 45, 2, 46, 1))
sketch3.addConstraint(Sketcher.Constraint("Coincident", 46, 2, 47, 1))
sketch3.addConstraint(Sketcher.Constraint("Coincident", 47, 2, 48, 1))
sketch3.addConstraint(Sketcher.Constraint("Coincident", 48, 2, 49, 1))
sketch3.addConstraint(Sketcher.Constraint("Coincident", 49, 2, 50, 1))
sketch3.addConstraint(Sketcher.Constraint("Coincident", 50, 2, 51, 1))
sketch3.addConstraint(Sketcher.Constraint("Coincident", 51, 2, 52, 1))
sketch3.addConstraint(Sketcher.Constraint("Coincident", 52, 2, 53, 1))
sketch3.addConstraint(Sketcher.Constraint("Coincident", 53, 2, 43, 1))
sketch3.addConstraint(Sketcher.Constraint("Coincident", 54, 2, 55, 1))
sketch3.addConstraint(Sketcher.Constraint("Coincident", 55, 2, 56, 1))
sketch3.addConstraint(Sketcher.Constraint("Coincident", 56, 2, 54, 1))
sketch3.addConstraint(Sketcher.Constraint("Coincident", 59, 1, 60, 1))
sketch3.addConstraint(Sketcher.Constraint("Coincident", 60, 2, 61, 2))
sketch3.addConstraint(Sketcher.Constraint("Coincident", 61, 1, 62, 1))
sketch3.addConstraint(Sketcher.Constraint("Coincident", 62, 2, 63, 1))
sketch3.addConstraint(Sketcher.Constraint("Coincident", 63, 2, 64, 1))
sketch3.addConstraint(Sketcher.Constraint("Coincident", 64, 2, 65, 2))
sketch3.addConstraint(Sketcher.Constraint("Coincident", 71, 2, 72, 1))
sketch3.addConstraint(Sketcher.Constraint("Coincident", 72, 2, 73, 1))
sketch3.addConstraint(Sketcher.Constraint("Coincident", 73, 2, 74, 1))
sketch3.addConstraint(Sketcher.Constraint("Coincident", 74, 2, 75, 1))
sketch3.addConstraint(Sketcher.Constraint("Coincident", 75, 2, 76, 1))
sketch3.addConstraint(Sketcher.Constraint("Coincident", 76, 2, 77, 1))
sketch3.addConstraint(Sketcher.Constraint("Coincident", 77, 2, 78, 1))
sketch3.addConstraint(Sketcher.Constraint("Coincident", 78, 2, 79, 1))
sketch3.addConstraint(Sketcher.Constraint("Coincident", 79, 2, 80, 1))
sketch3.addConstraint(Sketcher.Constraint("Coincident", 80, 2, 81, 1))
sketch3.addConstraint(Sketcher.Constraint("Coincident", 81, 2, 71, 1))
sketch3.addConstraint(Sketcher.Constraint("Coincident", 82, 2, 83, 1))
sketch3.addConstraint(Sketcher.Constraint("Coincident", 83, 2, 84, 1))
sketch3.addConstraint(Sketcher.Constraint("Coincident", 84, 2, 82, 1))
sketch3.addConstraint(Sketcher.Constraint("Horizontal", 1))
sketch3.addConstraint(Sketcher.Constraint("Horizontal", 3))
sketch3.addConstraint(Sketcher.Constraint("Horizontal", 5))
sketch3.addConstraint(Sketcher.Constraint("Horizontal", 7))
sketch3.addConstraint(Sketcher.Constraint("Horizontal", 9))
sketch3.addConstraint(Sketcher.Constraint("Vertical", 12))
sketch3.addConstraint(Sketcher.Constraint("Horizontal", 13))
sketch3.addConstraint(Sketcher.Constraint("Vertical", 14))
sketch3.addConstraint(Sketcher.Constraint("Horizontal", 15))
sketch3.addConstraint(Sketcher.Constraint("Vertical", 16))
sketch3.addConstraint(Sketcher.Constraint("Horizontal", 22))
sketch3.addConstraint(Sketcher.Constraint("Horizontal", 24))
sketch3.addConstraint(Sketcher.Constraint("Horizontal", 26))
sketch3.addConstraint(Sketcher.Constraint("Horizontal", 28))
sketch3.addConstraint(Sketcher.Constraint("Horizontal", 30))
sketch3.addConstraint(Sketcher.Constraint("Vertical", 32))
sketch3.addConstraint(Sketcher.Constraint("Horizontal", 34))
sketch3.addConstraint(Sketcher.Constraint("Horizontal", 39))
sketch3.addConstraint(Sketcher.Constraint("Vertical", 41))
sketch3.addConstraint(Sketcher.Constraint("Horizontal", 42))
sketch3.addConstraint(Sketcher.Constraint("Vertical", 43))
sketch3.addConstraint(Sketcher.Constraint("Horizontal", 44))
sketch3.addConstraint(Sketcher.Constraint("Vertical", 45))
sketch3.addConstraint(Sketcher.Constraint("Horizontal", 46))
sketch3.addConstraint(Sketcher.Constraint("Vertical", 47))
sketch3.addConstraint(Sketcher.Constraint("Horizontal", 48))
sketch3.addConstraint(Sketcher.Constraint("Vertical", 50))
sketch3.addConstraint(Sketcher.Constraint("Horizontal", 51))
sketch3.addConstraint(Sketcher.Constraint("Vertical", 52))
sketch3.addConstraint(Sketcher.Constraint("Horizontal", 53))
sketch3.addConstraint(Sketcher.Constraint("Vertical", 54))
sketch3.addConstraint(Sketcher.Constraint("Horizontal", 55))
sketch3.addConstraint(Sketcher.Constraint("Horizontal", 62))
sketch3.addConstraint(Sketcher.Constraint("Vertical", 63))
sketch3.addConstraint(Sketcher.Constraint("Horizontal", 64))
sketch3.addConstraint(Sketcher.Constraint("Vertical", 71))
sketch3.addConstraint(Sketcher.Constraint("Horizontal", 72))
sketch3.addConstraint(Sketcher.Constraint("Vertical", 73))
sketch3.addConstraint(Sketcher.Constraint("Horizontal", 74))
sketch3.addConstraint(Sketcher.Constraint("Vertical", 75))
sketch3.addConstraint(Sketcher.Constraint("Horizontal", 76))
sketch3.addConstraint(Sketcher.Constraint("Vertical", 78))
sketch3.addConstraint(Sketcher.Constraint("Horizontal", 79))
sketch3.addConstraint(Sketcher.Constraint("Vertical", 80))
sketch3.addConstraint(Sketcher.Constraint("Horizontal", 81))
sketch3.addConstraint(Sketcher.Constraint("Vertical", 82))
sketch3.addConstraint(Sketcher.Constraint("Horizontal", 83))
sketch3.addConstraint(Sketcher.Constraint("DistanceY", 32, 1, 32, 2, 26.5625))
sketch3.addConstraint(Sketcher.Constraint("DistanceX", 3, 2, 3, 1, 19.718071))
sketch3.addConstraint(Sketcher.Constraint("DistanceX", 5, 1, 5, 2, 13.977582))
sketch3.addConstraint(Sketcher.Constraint("DistanceX", 7, 1, 7, 2, 26.10394))
sketch3.addConstraint(Sketcher.Constraint("DistanceX", 9, 2, 9, 1, 19.446332))
sketch3.addConstraint(Sketcher.Constraint("DistanceX", 24, 2, 24, 1, 19.718071))
sketch3.addConstraint(Sketcher.Constraint("DistanceX", 26, 1, 26, 2, 13.977582))
sketch3.addConstraint(Sketcher.Constraint("DistanceX", 28, 1, 28, 2, 26.10394))
sketch3.addConstraint(Sketcher.Constraint("DistanceX", 30, 2, 30, 1, 19.446332))
sketch3.addConstraint(Sketcher.Constraint("DistanceX", 34, 2, 34, 1, 15.217391))
sketch3.addConstraint(Sketcher.Constraint("DistanceX", 39, 2, 39, 1, 15.217391))
sketch3.addConstraint(Sketcher.Constraint("DistanceX", 44, 1, 44, 2, 11.956522))
sketch3.addConstraint(Sketcher.Constraint("DistanceX", 46, 2, 46, 1, 11.956522))
sketch3.addConstraint(Sketcher.Constraint("DistanceX", 48, 2, 48, 1, 18.834918))
sketch3.addConstraint(Sketcher.Constraint("DistanceX", 51, 1, 51, 2, 34.612772))
sketch3.addConstraint(Sketcher.Constraint("DistanceX", 55, 2, 55, 1, 21.09375))
sketch3.addConstraint(Sketcher.Constraint("DistanceX", 62, 1, 62, 2, 9.748641))
sketch3.addConstraint(Sketcher.Constraint("DistanceX", 72, 1, 72, 2, 11.956522))
sketch3.addConstraint(Sketcher.Constraint("DistanceX", 74, 2, 74, 1, 11.956522))
sketch3.addConstraint(Sketcher.Constraint("DistanceX", 76, 2, 76, 1, 18.834918))
sketch3.addConstraint(Sketcher.Constraint("DistanceX", 79, 1, 79, 2, 34.612772))
sketch3.addConstraint(Sketcher.Constraint("DistanceX", 83, 2, 83, 1, 21.09375))
sketch3.addConstraint(Sketcher.Constraint("DistanceY", 14, 2, 14, 1, 11.956522))
sketch3.addConstraint(Sketcher.Constraint("DistanceY", 16, 2, 16, 1, 38.654891))
sketch3.addConstraint(Sketcher.Constraint("DistanceY", 43, 1, 43, 2, 15.217391))
sketch3.addConstraint(Sketcher.Constraint("DistanceY", 45, 1, 45, 2, 11.956522))
sketch3.addConstraint(Sketcher.Constraint("DistanceY", 52, 2, 52, 1, 15.217391))
sketch3.addConstraint(Sketcher.Constraint("DistanceY", 71, 1, 71, 2, 15.217391))
sketch3.addConstraint(Sketcher.Constraint("DistanceY", 73, 1, 73, 2, 11.956522))
sketch3.addConstraint(Sketcher.Constraint("DistanceY", 80, 2, 80, 1, 15.217391))
sketch3.addConstraint(Sketcher.Constraint("DistanceX", -1, 1, 1, 2, 365.409102))
sketch3.addConstraint(Sketcher.Constraint("DistanceY", 8, 2, -1, 1, 498.671501))
sketch3.addConstraint(Sketcher.Constraint("DistanceY", 29, 2, -1, 1, 498.671501))
sketch3.addConstraint(Sketcher.Constraint("DistanceY", 45, 2, -1, 1, 498.671501))
sketch3.addConstraint(Sketcher.Constraint("DistanceX", -1, 1, 48, 2, 653.639401))
sketch3.addConstraint(Sketcher.Constraint("DistanceY", 54, 2, -1, 1, 498.671501))
sketch3.addConstraint(Sketcher.Constraint("DistanceY", 73, 2, -1, 1, 498.671501))
sketch3.addConstraint(Sketcher.Constraint("DistanceX", -1, 1, 77, 2, 752.909102))
sketch3.addConstraint(Sketcher.Constraint("DistanceY", 82, 2, -1, 1, 498.671501))
sketch3.addConstraint(Sketcher.Constraint("Distance", 4, 78.230442))
sketch3.addConstraint(Sketcher.Constraint("Distance", 10, 36.330348))
sketch3.addConstraint(Sketcher.Constraint("Distance", 25, 78.230442))
sketch3.addConstraint(Sketcher.Constraint("Distance", 31, 36.330348))
sketch3.addConstraint(Sketcher.Constraint("Distance", 40, 54.11014))
sketch3.addConstraint(Sketcher.Constraint("Distance", 56, 40.244149))
sketch3.addConstraint(Sketcher.Constraint("Distance", 84, 40.244149))
sketch3.addConstraint(Sketcher.Constraint("DistanceX", 1, 1, 1, 2, 15.591033))
sketch3.addConstraint(Sketcher.Constraint("DistanceX", 13, 2, 13, 1, 41.304348))
sketch3.addConstraint(Sketcher.Constraint("DistanceX", 22, 1, 22, 2, 15.591033))
sketch3.addConstraint(Sketcher.Constraint("DistanceX", 42, 1, 42, 2, 14.130435))
sketch3.addConstraint(Sketcher.Constraint("DistanceX", 53, 1, 53, 2, 13.213315))
sketch3.addConstraint(Sketcher.Constraint("DistanceX", 81, 1, 81, 2, 13.213315))
sketch3.addConstraint(Sketcher.Constraint("DistanceY", 41, 2, 41, 1, 26.460598))
sketch3.addConstraint(Sketcher.Constraint("DistanceY", 47, 1, 47, 2, 47.826087))
sketch3.addConstraint(Sketcher.Constraint("DistanceY", 50, 2, 50, 1, 11.616848))
sketch3.addConstraint(Sketcher.Constraint("DistanceY", 75, 1, 75, 2, 47.826087))
sketch3.addConstraint(Sketcher.Constraint("DistanceY", 78, 2, 78, 1, 11.616848))
sketch3.addConstraint(Sketcher.Constraint("DistanceX", -1, 1, 2, 2, 343.245379))
sketch3.addConstraint(Sketcher.Constraint("DistanceX", -1, 1, 5, 2, 315.256248))
sketch3.addConstraint(Sketcher.Constraint("DistanceX", -1, 1, 21, 2, 478.078939))
sketch3.addConstraint(Sketcher.Constraint("DistanceX", -1, 1, 23, 2, 471.506248))
sketch3.addConstraint(Sketcher.Constraint("DistanceX", -1, 1, 26, 2, 443.517118))
sketch3.addConstraint(Sketcher.Constraint("DistanceX", -1, 1, 35, 2, 531.526629))
sketch3.addConstraint(Sketcher.Constraint("DistanceY", 36, 2, -1, 1, 485.390251))
sketch3.addConstraint(Sketcher.Constraint("DistanceY", 37, 2, -1, 1, 474.028159))
sketch3.addConstraint(Sketcher.Constraint("DistanceX", -1, 1, 40, 2, 519.21345))
sketch3.addConstraint(Sketcher.Constraint("DistanceX", -1, 1, 54, 2, 659.430841))
sketch3.addConstraint(Sketcher.Constraint("DistanceX", -1, 1, 82, 2, 787.69171))
sketch3.addConstraint(Sketcher.Constraint("Distance", 0, 15.776025))
sketch3.addConstraint(Sketcher.Constraint("Distance", 2, 78.206334))
sketch3.addConstraint(Sketcher.Constraint("Distance", 6, 15.812404))
sketch3.addConstraint(Sketcher.Constraint("Distance", 8, 36.262103))
sketch3.addConstraint(Sketcher.Constraint("Distance", 21, 15.776025))
sketch3.addConstraint(Sketcher.Constraint("Distance", 23, 78.206334))
sketch3.addConstraint(Sketcher.Constraint("Distance", 27, 15.812404))
sketch3.addConstraint(Sketcher.Constraint("Distance", 29, 36.262103))
sketch3.addConstraint(Sketcher.Constraint("Distance", 33, 54.508636))
sketch3.addConstraint(Sketcher.Constraint("Distance", 35, 25.619577))
sketch3.addConstraint(Sketcher.Constraint("Distance", 36, 12.756124))
sketch3.addConstraint(Sketcher.Constraint("Distance", 37, 12.417695))
sketch3.addConstraint(Sketcher.Constraint("Distance", 38, 25.626106))
sketch3.addConstraint(Sketcher.Constraint("DistanceY", 0, 2, -1, 1, 525.845415))
sketch3.addConstraint(Sketcher.Constraint("DistanceX", -1, 1, 8, 2, 342.396194))
sketch3.addConstraint(Sketcher.Constraint("DistanceY", 21, 2, -1, 1, 525.845415))
sketch3.addConstraint(Sketcher.Constraint("DistanceX", -1, 1, 29, 2, 470.657064))
sketch3.addConstraint(Sketcher.Constraint("DistanceY", 32, 2, -1, 1, 499.282915))
sketch3.addConstraint(Sketcher.Constraint("DistanceX", -1, 1, 33, 2, 558.343884))
pad3 = body.newObject("PartDesign::Pad", "Pad002")
pad3.Profile = sketch3
pad3.Length = 40

doc.recompute()
